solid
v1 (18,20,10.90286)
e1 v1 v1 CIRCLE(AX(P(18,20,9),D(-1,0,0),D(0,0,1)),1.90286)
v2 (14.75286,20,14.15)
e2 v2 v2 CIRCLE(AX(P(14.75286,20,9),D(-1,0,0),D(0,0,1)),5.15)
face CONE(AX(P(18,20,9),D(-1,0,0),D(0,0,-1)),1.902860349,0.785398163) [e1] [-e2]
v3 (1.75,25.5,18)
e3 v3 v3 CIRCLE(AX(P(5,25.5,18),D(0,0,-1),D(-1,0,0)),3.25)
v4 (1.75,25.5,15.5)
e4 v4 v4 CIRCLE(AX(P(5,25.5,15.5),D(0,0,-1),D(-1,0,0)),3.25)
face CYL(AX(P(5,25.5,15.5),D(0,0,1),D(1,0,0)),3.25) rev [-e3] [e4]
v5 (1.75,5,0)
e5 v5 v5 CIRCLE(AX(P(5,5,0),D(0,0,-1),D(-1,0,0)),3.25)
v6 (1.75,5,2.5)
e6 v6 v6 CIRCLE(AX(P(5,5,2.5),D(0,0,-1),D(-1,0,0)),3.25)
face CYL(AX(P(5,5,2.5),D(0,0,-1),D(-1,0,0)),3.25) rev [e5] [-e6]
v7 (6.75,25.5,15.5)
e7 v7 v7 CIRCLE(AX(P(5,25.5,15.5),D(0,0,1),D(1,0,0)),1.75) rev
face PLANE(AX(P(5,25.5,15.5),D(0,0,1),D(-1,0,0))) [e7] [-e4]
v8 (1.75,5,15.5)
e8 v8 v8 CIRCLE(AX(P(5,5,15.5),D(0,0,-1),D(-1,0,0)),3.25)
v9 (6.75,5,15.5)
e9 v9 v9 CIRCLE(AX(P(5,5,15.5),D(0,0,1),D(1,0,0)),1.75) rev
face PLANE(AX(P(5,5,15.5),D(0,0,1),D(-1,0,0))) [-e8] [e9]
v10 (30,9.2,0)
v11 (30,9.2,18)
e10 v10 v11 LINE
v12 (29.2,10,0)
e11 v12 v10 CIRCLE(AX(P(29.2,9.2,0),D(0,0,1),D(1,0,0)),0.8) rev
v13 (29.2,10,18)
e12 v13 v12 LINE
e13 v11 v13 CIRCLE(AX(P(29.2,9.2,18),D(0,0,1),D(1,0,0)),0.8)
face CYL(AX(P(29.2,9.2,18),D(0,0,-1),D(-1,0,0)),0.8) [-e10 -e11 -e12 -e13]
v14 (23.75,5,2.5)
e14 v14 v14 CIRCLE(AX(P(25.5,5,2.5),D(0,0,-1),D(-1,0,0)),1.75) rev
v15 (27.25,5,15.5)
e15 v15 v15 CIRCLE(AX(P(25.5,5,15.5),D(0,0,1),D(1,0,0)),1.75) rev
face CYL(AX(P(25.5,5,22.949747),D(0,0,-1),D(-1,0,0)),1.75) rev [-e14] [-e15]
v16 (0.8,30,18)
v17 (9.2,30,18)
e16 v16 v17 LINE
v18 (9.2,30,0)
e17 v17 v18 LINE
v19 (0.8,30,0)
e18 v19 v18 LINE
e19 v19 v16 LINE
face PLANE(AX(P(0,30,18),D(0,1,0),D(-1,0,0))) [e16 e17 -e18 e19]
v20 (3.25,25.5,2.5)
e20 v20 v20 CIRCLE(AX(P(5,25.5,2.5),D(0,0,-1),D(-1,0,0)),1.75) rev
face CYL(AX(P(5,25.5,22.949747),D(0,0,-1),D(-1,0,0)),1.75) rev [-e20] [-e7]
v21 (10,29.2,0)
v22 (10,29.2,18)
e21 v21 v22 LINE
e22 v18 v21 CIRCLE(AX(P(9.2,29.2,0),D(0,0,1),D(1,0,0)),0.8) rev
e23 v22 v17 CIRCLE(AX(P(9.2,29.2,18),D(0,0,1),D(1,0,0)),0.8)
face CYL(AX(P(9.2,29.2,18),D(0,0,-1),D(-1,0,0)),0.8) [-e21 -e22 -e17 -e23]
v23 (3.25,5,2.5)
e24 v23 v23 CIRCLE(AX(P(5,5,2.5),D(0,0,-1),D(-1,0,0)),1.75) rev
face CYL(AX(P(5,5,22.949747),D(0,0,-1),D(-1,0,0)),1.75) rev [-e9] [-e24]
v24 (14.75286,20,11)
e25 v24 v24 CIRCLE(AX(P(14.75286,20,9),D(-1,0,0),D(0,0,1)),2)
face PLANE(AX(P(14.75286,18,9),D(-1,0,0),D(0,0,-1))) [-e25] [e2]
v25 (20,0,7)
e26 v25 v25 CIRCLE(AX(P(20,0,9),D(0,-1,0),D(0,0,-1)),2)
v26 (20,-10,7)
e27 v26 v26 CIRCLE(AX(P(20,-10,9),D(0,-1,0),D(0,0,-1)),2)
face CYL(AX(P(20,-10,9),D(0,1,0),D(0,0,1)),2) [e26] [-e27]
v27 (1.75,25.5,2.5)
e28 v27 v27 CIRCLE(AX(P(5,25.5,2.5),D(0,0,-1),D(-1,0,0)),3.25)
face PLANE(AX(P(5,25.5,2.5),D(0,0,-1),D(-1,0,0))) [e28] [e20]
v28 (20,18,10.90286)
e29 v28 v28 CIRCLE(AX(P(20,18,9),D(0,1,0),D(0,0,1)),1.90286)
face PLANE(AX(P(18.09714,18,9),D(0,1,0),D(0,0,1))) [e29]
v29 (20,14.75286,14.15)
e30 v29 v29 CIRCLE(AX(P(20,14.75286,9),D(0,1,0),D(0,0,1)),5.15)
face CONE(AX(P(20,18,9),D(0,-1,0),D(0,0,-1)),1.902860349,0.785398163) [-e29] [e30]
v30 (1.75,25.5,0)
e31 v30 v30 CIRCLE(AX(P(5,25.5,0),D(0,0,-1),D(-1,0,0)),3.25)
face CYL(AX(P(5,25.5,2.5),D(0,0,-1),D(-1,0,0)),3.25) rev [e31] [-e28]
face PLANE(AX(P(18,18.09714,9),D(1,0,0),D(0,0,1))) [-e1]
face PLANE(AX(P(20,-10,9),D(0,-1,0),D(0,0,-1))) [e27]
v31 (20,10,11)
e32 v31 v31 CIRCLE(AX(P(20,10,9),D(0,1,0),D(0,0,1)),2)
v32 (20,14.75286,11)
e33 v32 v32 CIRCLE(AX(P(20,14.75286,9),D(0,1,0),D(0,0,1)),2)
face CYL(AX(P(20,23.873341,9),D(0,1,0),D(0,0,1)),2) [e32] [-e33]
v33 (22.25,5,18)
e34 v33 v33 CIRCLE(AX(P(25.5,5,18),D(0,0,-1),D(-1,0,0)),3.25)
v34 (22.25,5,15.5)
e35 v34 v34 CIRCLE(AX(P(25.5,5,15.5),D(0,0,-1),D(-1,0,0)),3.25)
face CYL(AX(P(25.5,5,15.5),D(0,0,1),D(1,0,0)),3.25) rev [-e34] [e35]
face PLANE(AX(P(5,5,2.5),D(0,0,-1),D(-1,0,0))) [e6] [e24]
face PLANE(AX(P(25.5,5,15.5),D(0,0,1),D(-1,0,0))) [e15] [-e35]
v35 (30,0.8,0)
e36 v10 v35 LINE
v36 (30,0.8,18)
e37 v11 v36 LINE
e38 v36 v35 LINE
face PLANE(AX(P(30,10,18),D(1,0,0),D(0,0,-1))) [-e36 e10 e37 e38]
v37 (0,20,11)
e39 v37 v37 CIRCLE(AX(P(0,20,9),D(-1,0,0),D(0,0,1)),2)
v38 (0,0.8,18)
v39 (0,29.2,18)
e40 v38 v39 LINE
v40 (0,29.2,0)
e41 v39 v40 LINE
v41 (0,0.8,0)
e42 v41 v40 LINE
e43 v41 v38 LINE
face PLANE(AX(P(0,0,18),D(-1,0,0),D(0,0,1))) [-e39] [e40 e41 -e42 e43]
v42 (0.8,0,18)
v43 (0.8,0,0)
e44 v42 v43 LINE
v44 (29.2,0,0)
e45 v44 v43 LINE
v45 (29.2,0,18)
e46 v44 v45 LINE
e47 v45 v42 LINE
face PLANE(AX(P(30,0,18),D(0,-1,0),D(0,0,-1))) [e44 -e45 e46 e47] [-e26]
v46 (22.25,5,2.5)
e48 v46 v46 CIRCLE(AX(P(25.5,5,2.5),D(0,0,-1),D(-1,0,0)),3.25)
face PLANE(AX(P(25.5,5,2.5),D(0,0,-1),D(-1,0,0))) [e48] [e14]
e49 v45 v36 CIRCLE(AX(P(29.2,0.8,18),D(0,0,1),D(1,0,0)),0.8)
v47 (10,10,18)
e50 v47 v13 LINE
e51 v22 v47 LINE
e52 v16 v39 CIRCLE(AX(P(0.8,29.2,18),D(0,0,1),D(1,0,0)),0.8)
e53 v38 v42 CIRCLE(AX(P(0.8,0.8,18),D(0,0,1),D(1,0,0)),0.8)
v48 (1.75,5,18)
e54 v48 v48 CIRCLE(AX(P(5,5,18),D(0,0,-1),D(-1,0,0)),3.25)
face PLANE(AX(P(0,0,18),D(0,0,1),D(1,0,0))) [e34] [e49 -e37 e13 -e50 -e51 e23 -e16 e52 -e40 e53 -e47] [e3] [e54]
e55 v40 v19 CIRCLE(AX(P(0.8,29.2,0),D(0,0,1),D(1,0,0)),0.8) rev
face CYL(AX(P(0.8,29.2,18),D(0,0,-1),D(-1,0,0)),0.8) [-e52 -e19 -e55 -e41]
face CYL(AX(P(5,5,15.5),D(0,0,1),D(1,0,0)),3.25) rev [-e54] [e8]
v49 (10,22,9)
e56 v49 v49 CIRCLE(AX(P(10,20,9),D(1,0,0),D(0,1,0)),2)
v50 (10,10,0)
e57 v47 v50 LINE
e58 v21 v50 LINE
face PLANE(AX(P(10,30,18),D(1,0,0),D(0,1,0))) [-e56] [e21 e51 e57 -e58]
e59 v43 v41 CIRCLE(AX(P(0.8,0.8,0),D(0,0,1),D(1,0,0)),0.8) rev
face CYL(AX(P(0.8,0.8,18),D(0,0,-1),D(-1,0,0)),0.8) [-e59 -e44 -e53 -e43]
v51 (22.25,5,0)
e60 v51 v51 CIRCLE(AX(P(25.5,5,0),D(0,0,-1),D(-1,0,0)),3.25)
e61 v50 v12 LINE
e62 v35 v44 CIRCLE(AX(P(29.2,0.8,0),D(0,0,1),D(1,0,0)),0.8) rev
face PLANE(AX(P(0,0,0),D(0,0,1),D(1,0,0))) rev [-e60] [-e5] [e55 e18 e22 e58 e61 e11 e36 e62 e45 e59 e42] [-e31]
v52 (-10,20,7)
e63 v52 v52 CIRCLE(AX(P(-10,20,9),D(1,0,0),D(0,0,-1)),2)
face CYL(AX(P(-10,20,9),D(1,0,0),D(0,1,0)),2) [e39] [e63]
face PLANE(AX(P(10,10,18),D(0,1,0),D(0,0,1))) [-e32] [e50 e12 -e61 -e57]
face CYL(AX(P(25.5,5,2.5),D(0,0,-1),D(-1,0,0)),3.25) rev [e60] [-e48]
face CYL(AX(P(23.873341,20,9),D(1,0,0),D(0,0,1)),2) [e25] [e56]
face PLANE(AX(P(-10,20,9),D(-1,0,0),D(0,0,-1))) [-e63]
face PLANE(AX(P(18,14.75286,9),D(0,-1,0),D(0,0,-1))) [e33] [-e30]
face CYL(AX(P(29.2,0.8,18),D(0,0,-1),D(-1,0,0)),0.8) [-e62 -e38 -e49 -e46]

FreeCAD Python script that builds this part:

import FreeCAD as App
import Part
import Sketcher
from FreeCAD import Vector
Q = App.Units.Quantity


def edges_at(feature, points):
    """Names of the edges that pass closest to the given points."""
    edges = feature.Shape.Edges
    near = lambda p: min(range(len(edges)), key=lambda i: edges[i].distToShape(Part.Vertex(*p))[0])
    return sorted({f"Edge{near(p) + 1}" for p in points})


def add_polygon(sketch, points):
    """Adds a closed chain of lines whose ends are joined by coincident constraints."""
    first, n = sketch.GeometryCount, len(points)
    for a, b in zip(points, points[1:] + points[:1]):
        sketch.addGeometry(Part.LineSegment(App.Vector(*a, 0), App.Vector(*b, 0)), False)
    for i in range(n):
        sketch.addConstraint(Sketcher.Constraint("Coincident", first + i, 2, first + (i + 1) % n, 1))

doc = App.newDocument("Part")
body = doc.addObject("PartDesign::Body", "Body")

# Sketch on XY plane
sketch1 = body.newObject("Sketcher::SketchObject", "Sketch")
sketch1.AttachmentSupport = (doc.getObject("XY_Plane"), [""])
sketch1.MapMode = "FlatFace"
add_polygon(sketch1, [(0, 30), (0, 0), (30, 0), (30, 10), (10, 10), (10, 30)])  # lines 0-5
sketch1.addConstraint([
    Sketcher.Constraint("Vertical", 0),
    Sketcher.Constraint("Horizontal", 1),
    Sketcher.Constraint("Vertical", 2),
    Sketcher.Constraint("Horizontal", 3),
    Sketcher.Constraint("Vertical", 4),
    Sketcher.Constraint("Horizontal", 5),
    Sketcher.Constraint("Coincident", 0, 2, -1, 1),
    Sketcher.Constraint("Equal", 1, 0),
    Sketcher.Constraint("Equal", 5, 2),
    Sketcher.Constraint("DistanceX", 1, 1, 1, 2, 30.0),
    Sketcher.Constraint("DistanceX", 3, 2, 3, 1, 20.0),
])
pad1 = body.newObject("PartDesign::Pad", "Pad")
pad1.Profile = sketch1
pad1.Length = 18

# Sketch on XY plane
sketch2 = body.newObject("Sketcher::SketchObject", "Sketch001")
sketch2.AttachmentSupport = (doc.getObject("XY_Plane"), [""])
sketch2.MapMode = "FlatFace"
sketch2.addGeometry([
    Part.Circle(Vector(25.5, 5, 0), Vector(0, 0, 1), 1.8),
    Part.Circle(Vector(5, 5, 0), Vector(0, 0, 1), 1.8),
    Part.Circle(Vector(5, 25.5, 0), Vector(0, 0, 1), 1.8),
], False)
sketch2.addConstraint([
    Sketcher.Constraint("Equal", 0, 1),
    Sketcher.Constraint("Equal", 1, 2),
    Sketcher.Constraint("Horizontal", 0, 3, 1, 3),
    Sketcher.Constraint("Vertical", 1, 3, 2, 3),
    Sketcher.Constraint("Diameter", 0, 3.5),
    Sketcher.Constraint("DistanceY", -1, 1, 0, 3, 5.0),
    Sketcher.Constraint("DistanceX", -1, 1, 1, 3, 5.0),
    Sketcher.Constraint("DistanceX", -1, 1, 0, 3, 25.5),
    Sketcher.Constraint("DistanceY", -1, 1, 2, 3, 25.5),
])
pocket1 = body.newObject("PartDesign::Pocket", "Pocket")
pocket1.Profile = sketch2
pocket1.Length = 18
pocket1.Reversed = True

# Sketch on XY plane
sketch3 = body.newObject("Sketcher::SketchObject", "Sketch002")
sketch3.AttachmentSupport = (doc.getObject("XY_Plane"), [""])
sketch3.MapMode = "FlatFace"
sketch3.addGeometry([
    Part.Circle(Vector(25.5, 5, 0), Vector(0, 0, 1), 3.2),
    Part.Circle(Vector(5, 5, 0), Vector(0, 0, 1), 3.2),
    Part.Circle(Vector(5, 25.5, 0), Vector(0, 0, 1), 3.2),
], False)
sketch3.addConstraint([
    Sketcher.Constraint("Equal", 0, 1),
    Sketcher.Constraint("Equal", 1, 2),
    Sketcher.Constraint("Horizontal", 0, 3, 1, 3),
    Sketcher.Constraint("Vertical", 1, 3, 2, 3),
    Sketcher.Constraint("Diameter", 0, 6.5),
    Sketcher.Constraint("DistanceY", -1, 1, 0, 3, 5.0),
    Sketcher.Constraint("DistanceX", -1, 1, 1, 3, 5.0),
    Sketcher.Constraint("DistanceX", -1, 1, 0, 3, 25.5),
    Sketcher.Constraint("DistanceY", -1, 1, 2, 3, 25.5),
])
pocket2 = body.newObject("PartDesign::Pocket", "Pocket001")
pocket2.Profile = sketch3
pocket2.Length = 2.5
pocket2.Reversed = True
doc.recompute()

datumplane = body.newObject("PartDesign::Plane", "DatumPlane")
datumplane.AttachmentSupport = (doc.getObject("XY_Plane"), [""])
datumplane.MapMode = "FlatFace"
datumplane.AttachmentOffset = App.Placement(Vector(0, 0, 9), App.Rotation())
mirrored = body.newObject("PartDesign::Mirrored", "Mirrored")
mirrored.Originals = [pocket2]
mirrored.MirrorPlane = (datumplane, [""])
body.Tip = mirrored
doc.recompute()

fillet = body.newObject("PartDesign::Fillet", "Fillet")
fillet.Base = (mirrored, edges_at(mirrored, [
    (10, 30, 9),
    (0, 30, 9),
    (0, 0, 9),
    (30, 0, 9),
    (30, 10, 9),
]))
fillet.Radius = 0.8

# Sketch on XZ plane
sketch4 = body.newObject("Sketcher::SketchObject", "Sketch003")
sketch4.AttachmentSupport = (doc.getObject("XZ_Plane"), [""])
sketch4.MapMode = "FlatFace"
sketch4.addGeometry(Part.Circle(Vector(20, 9, 0), Vector(0, 0, 1), 2), False)
sketch4.addConstraint([
    Sketcher.Constraint("Diameter", 0, 4.0),
    Sketcher.Constraint("DistanceX", -1, 1, 0, 3, 20.0),
    Sketcher.Constraint("DistanceY", -1, 1, 0, 3, 9.0),
])
pad2 = body.newObject("PartDesign::Pad", "Pad001")
pad2.Profile = sketch4
pad2.Length = 10
doc.recompute()

datumplane2 = body.newObject("PartDesign::Plane", "DatumPlane001")
datumplane2.Placement = App.Placement(Vector(0, 0, 0), App.Rotation(Vector(-0.707106781, -0.707106781, 0), Vector(0, 0, -1), Vector(0.707106781, -0.707106781, 0), "ZXY"))
mirrored2 = body.newObject("PartDesign::Mirrored", "Mirrored001")
mirrored2.Originals = [pad2]
mirrored2.MirrorPlane = (datumplane2, [""])
body.Tip = mirrored2

# Sketch on XY plane
sketch5 = body.newObject("Sketcher::SketchObject", "Sketch004")
sketch5.AttachmentSupport = (doc.getObject("XY_Plane"), [""])
sketch5.MapMode = "FlatFace"
sketch5.AttachmentOffset = App.Placement(Vector(0, 0, 9), App.Rotation())
add_polygon(sketch5, [(18, 14.8), (18, 10), (20, 10), (20, 18), (18.1, 18), (14.8, 14.8)])  # lines 0-5
sketch5.addGeometry(Part.LineSegment(Vector(20, 18, 0), Vector(20, 10, 0)), True)  # axis
sketch5.addConstraint([
    Sketcher.Constraint("Vertical", 0),
    Sketcher.Constraint("Horizontal", 1),
    Sketcher.Constraint("Vertical", 2),
    Sketcher.Constraint("Horizontal", 3),
    Sketcher.Constraint("Horizontal", 5),
    Sketcher.Constraint("Vertical", 6),
    Sketcher.Constraint("Coincident", 6, 1, 2, 2),
    Sketcher.Constraint("Horizontal", 0, 2, 6, 2),
    Sketcher.Constraint("DistanceX", 1, 1, 1, 2, 2.0),
    Sketcher.Constraint("DistanceY", 2, 1, 2, 2, 8.0),
    Sketcher.Constraint("Angle", 4, Q("-135 deg")),
    Sketcher.Constraint("DistanceX", -1, 1, 0, 2, 18.0),
    Sketcher.Constraint("DistanceY", -1, 1, 0, 2, 10.0),
    Sketcher.Constraint("DistanceX", 5, 1, 5, 2, 3.15),
    Sketcher.Constraint("DistanceX", 3, 2, 3, 1, 1.90286),
])
revolution = body.newObject("PartDesign::Revolution", "Revolution")
revolution.Profile = sketch5
revolution.ReferenceAxis = (sketch5, ["Axis0"])
revolution.Angle = 360
doc.recompute()

datumplane3 = body.newObject("PartDesign::Plane", "DatumPlane002")
datumplane3.Placement = App.Placement(Vector(0, 0, 0), App.Rotation(Vector(-0.707106781, -0.707106781, 0), Vector(0, 0, -1), Vector(0.707106781, -0.707106781, 0), "ZXY"))
mirrored3 = body.newObject("PartDesign::Mirrored", "Mirrored002")
mirrored3.Originals = [revolution]
mirrored3.MirrorPlane = (datumplane3, [""])
body.Tip = mirrored3

doc.recompute()
